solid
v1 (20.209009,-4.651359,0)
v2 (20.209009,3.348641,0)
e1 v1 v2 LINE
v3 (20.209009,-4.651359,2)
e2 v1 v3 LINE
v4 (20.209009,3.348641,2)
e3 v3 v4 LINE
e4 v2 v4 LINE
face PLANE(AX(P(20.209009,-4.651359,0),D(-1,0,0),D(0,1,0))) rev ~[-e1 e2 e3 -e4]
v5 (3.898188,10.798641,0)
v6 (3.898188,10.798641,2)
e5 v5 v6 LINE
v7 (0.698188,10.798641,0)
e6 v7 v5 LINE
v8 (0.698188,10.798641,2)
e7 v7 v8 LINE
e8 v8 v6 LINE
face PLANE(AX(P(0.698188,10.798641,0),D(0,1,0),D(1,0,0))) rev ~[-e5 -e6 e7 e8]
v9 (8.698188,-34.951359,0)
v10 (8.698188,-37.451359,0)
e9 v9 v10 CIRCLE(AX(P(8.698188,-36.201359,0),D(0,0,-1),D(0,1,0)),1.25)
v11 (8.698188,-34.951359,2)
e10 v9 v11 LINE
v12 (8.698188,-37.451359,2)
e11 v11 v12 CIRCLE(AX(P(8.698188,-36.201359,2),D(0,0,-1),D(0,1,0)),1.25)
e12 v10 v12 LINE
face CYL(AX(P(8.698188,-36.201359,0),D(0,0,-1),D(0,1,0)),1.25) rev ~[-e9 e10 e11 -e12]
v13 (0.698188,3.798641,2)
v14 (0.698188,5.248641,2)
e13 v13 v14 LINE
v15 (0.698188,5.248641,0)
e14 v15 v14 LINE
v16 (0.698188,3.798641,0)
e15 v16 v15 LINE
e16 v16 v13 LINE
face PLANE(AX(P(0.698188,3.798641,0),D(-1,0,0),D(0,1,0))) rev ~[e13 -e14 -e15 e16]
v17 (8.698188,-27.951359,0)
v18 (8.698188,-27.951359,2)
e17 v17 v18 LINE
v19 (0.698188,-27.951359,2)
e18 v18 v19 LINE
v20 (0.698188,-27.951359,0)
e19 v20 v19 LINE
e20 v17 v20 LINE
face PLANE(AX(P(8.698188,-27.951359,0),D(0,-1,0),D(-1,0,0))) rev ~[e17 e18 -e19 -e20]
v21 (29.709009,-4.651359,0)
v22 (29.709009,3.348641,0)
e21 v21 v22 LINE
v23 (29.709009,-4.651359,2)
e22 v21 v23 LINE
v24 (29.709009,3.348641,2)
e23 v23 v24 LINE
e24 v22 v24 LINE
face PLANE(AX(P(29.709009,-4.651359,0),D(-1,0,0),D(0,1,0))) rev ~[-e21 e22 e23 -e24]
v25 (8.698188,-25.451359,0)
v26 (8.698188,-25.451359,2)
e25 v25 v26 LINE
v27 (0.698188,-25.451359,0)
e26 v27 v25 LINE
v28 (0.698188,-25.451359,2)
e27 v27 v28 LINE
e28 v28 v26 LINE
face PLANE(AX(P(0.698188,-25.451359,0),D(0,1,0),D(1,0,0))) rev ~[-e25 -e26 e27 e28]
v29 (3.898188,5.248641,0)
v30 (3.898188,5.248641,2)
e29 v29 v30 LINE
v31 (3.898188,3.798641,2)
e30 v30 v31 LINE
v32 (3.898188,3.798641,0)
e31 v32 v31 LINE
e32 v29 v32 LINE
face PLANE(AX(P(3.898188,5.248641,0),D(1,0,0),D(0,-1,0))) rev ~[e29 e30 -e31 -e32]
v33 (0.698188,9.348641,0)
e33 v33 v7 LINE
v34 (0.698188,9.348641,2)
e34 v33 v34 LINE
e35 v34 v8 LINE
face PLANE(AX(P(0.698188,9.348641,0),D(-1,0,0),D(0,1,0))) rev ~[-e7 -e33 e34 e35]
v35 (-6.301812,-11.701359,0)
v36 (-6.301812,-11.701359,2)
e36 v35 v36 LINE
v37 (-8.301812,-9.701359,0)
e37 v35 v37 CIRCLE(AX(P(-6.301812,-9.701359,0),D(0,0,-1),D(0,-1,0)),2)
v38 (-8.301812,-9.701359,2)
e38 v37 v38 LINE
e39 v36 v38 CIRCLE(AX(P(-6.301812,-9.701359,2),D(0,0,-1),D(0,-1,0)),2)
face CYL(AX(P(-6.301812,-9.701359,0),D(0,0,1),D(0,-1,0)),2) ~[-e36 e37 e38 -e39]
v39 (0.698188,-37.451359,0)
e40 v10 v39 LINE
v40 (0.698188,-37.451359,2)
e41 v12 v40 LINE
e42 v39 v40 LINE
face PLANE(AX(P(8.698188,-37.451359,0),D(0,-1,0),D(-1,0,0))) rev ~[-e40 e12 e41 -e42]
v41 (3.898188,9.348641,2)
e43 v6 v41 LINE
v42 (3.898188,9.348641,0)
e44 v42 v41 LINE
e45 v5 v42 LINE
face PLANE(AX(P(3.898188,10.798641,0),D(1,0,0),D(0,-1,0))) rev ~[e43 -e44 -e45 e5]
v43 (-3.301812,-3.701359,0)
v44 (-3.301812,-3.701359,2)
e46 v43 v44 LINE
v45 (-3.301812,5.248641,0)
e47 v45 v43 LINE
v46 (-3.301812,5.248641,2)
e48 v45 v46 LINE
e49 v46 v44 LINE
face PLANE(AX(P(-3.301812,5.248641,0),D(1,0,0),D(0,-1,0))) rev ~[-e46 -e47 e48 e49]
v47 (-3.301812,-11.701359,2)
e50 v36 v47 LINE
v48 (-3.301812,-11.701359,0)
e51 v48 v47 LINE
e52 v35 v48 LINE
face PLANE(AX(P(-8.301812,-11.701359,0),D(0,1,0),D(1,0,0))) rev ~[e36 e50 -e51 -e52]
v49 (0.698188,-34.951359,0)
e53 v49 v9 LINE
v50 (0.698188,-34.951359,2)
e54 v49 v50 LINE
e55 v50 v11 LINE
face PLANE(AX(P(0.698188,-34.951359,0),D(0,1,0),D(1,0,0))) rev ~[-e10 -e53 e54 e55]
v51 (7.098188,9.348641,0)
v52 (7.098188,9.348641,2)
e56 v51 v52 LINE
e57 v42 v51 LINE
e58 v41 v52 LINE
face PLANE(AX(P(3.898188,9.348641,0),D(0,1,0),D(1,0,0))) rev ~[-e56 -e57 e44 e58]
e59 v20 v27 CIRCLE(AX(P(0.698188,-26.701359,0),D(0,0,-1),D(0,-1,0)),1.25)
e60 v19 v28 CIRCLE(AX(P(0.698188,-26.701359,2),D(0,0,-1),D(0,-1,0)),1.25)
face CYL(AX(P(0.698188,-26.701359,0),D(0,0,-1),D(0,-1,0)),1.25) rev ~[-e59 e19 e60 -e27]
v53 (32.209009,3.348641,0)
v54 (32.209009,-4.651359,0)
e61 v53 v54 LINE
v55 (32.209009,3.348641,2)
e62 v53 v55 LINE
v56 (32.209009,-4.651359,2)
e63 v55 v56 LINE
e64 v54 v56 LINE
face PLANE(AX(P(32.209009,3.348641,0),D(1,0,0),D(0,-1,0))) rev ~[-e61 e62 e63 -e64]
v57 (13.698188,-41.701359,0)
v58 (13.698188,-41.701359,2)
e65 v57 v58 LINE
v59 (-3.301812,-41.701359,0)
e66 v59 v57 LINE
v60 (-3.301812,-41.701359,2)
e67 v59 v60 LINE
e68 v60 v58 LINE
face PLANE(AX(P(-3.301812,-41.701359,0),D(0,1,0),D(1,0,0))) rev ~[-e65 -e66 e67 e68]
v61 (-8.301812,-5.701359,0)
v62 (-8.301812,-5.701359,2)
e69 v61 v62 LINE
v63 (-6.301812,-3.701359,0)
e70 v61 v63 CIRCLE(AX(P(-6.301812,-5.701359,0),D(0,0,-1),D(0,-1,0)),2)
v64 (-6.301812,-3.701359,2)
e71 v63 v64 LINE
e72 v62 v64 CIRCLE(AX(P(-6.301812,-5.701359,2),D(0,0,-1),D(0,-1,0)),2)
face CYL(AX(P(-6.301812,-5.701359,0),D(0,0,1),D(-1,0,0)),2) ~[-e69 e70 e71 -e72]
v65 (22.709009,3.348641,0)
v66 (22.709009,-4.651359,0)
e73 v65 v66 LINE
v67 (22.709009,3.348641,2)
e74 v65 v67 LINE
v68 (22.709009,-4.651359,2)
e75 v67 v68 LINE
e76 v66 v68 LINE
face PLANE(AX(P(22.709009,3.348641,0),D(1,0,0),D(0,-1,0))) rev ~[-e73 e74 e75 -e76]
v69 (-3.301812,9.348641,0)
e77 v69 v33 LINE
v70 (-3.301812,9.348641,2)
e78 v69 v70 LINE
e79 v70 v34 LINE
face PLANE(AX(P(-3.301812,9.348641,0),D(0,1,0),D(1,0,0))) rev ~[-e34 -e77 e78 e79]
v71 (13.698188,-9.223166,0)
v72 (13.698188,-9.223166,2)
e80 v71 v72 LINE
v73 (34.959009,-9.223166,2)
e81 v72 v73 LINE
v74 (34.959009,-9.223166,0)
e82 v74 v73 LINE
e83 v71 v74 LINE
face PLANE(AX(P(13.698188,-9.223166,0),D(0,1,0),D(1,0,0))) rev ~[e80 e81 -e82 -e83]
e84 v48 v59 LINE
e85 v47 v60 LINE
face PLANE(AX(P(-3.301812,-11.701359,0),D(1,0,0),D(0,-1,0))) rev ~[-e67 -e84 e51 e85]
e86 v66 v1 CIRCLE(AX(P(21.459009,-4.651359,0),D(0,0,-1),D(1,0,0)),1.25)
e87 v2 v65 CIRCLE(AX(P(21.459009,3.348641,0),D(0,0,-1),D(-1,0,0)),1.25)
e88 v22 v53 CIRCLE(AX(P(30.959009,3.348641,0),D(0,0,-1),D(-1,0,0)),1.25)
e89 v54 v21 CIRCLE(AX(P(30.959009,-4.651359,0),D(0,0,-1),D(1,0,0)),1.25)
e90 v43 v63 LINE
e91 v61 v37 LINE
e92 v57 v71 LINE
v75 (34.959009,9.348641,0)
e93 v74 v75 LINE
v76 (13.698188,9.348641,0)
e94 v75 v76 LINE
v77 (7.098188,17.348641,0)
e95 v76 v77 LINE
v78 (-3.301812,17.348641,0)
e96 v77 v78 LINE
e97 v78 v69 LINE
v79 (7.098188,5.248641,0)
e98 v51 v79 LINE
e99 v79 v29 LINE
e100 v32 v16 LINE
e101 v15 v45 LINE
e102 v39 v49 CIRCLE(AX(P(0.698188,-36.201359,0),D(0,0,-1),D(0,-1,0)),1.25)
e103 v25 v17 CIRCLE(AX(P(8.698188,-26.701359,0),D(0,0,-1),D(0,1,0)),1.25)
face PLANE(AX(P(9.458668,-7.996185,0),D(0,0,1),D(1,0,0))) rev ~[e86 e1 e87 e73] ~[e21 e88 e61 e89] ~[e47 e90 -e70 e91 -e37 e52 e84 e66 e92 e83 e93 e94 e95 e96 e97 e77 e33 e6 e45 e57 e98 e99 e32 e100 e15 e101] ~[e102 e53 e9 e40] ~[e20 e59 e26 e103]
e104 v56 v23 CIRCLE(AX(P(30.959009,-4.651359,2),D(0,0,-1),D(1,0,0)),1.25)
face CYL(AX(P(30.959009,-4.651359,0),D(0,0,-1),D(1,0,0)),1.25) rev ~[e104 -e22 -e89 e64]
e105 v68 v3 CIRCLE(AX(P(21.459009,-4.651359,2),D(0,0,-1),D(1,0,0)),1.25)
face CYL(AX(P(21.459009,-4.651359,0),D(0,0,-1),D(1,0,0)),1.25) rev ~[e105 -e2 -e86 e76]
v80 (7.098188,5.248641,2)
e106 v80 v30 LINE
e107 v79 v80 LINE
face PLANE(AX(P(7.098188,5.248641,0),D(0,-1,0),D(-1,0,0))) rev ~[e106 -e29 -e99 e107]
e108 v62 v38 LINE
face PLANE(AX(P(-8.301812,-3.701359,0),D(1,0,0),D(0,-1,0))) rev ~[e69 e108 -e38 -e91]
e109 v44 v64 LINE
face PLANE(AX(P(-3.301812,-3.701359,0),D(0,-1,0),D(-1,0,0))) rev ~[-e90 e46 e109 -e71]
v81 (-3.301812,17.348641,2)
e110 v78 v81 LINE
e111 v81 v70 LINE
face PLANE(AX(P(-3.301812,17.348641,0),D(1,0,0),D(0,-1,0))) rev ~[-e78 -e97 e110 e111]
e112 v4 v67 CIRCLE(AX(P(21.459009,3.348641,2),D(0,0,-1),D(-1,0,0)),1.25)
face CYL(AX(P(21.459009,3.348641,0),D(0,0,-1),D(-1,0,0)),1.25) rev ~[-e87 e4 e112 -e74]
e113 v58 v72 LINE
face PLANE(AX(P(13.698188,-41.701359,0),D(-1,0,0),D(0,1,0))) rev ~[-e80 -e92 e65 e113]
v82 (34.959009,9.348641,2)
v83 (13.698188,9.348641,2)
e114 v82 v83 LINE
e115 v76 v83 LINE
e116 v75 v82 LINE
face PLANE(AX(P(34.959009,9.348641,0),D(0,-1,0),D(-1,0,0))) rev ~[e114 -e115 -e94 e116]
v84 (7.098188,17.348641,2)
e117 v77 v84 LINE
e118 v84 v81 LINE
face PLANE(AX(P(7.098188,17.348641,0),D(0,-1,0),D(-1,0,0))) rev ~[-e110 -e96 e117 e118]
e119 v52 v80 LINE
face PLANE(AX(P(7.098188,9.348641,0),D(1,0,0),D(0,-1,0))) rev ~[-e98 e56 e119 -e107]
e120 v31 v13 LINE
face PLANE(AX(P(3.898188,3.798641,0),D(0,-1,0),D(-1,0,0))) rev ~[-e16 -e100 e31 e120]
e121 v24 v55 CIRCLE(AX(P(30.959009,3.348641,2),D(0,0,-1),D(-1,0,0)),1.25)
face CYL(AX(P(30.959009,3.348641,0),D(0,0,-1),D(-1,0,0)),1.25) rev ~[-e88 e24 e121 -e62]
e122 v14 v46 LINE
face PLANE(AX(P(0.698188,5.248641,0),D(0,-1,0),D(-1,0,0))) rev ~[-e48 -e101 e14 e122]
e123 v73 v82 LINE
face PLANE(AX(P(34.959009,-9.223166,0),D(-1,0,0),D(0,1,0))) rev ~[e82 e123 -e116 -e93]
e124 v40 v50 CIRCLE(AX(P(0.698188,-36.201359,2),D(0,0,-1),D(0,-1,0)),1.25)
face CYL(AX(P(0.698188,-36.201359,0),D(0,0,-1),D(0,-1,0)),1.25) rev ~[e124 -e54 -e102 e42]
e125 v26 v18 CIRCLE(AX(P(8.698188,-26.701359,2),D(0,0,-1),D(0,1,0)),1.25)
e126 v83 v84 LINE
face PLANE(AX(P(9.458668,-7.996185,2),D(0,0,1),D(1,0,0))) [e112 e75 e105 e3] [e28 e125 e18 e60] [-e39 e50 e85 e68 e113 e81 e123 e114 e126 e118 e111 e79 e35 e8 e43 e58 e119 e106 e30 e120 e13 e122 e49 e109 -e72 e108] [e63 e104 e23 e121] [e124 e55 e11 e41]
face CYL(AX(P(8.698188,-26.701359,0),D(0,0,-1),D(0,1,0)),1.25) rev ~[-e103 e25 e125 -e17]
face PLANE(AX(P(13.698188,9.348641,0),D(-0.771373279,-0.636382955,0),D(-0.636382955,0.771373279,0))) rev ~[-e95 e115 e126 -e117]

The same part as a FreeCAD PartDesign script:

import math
import FreeCAD as App
import Part
import Sketcher
from FreeCAD import Vector


def edges_at(feature, points):
    """Names of the edges that pass closest to the given points."""
    edges = feature.Shape.Edges
    near = lambda p: min(range(len(edges)), key=lambda i: edges[i].distToShape(Part.Vertex(*p))[0])
    return sorted({f"Edge{near(p) + 1}" for p in points})


def add_polygon(sketch, points):
    """Adds a closed chain of lines whose ends are joined by coincident constraints."""
    first, n = sketch.GeometryCount, len(points)
    for a, b in zip(points, points[1:] + points[:1]):
        sketch.addGeometry(Part.LineSegment(App.Vector(*a, 0), App.Vector(*b, 0)), False)
    for i in range(n):
        sketch.addConstraint(Sketcher.Constraint("Coincident", first + i, 2, first + (i + 1) % n, 1))

doc = App.newDocument("Part")
body = doc.addObject("PartDesign::Body", "Body")

# Sketch on XY plane
sketch1 = doc.addObject("Sketcher::SketchObject", "Sketch")
body.addObject(sketch1)
sketch1.AttachmentSupport = (doc.XY_Plane, [""])
sketch1.MapMode = "FlatFace"
add_polygon(sketch1, [(-8.301812, -11.701359), (-3.301812, -11.701359), (-3.301812, -41.701359), (13.698188, -41.701359), (13.698188, -9.223166), (34.959009, -9.223166), (34.959009, 9.348641), (13.698188, 9.348641), (7.098188, 17.348641), (-3.301812, 17.348641), (-3.301812, 9.348641), (0.698188, 9.348641), (0.698188, 10.798641), (3.898188, 10.798641), (3.898188, 9.348641), (7.098188, 9.348641), (7.098188, 5.248641), (3.898188, 5.248641), (3.898188, 3.798641), (0.698188, 3.798641), (0.698188, 5.248641), (-3.301812, 5.248641), (-3.301812, -3.701359), (-8.301812, -3.701359)])  # lines 0-23
sketch1.addGeometry(Part.ArcOfCircle(Part.Circle(Vector(8.698188, -36.201359, 0), Vector(0, 0, 1), 1.25), math.radians(-90), math.radians(90)), False)  # 24
sketch1.addGeometry(Part.LineSegment(Vector(8.698188, -37.451359, 0), Vector(0.698188, -37.451359, 0)), False)  # 25
sketch1.addGeometry(Part.ArcOfCircle(Part.Circle(Vector(0.698188, -36.201359, 0), Vector(0, 0, 1), 1.25), math.radians(90), math.radians(270)), False)  # 26
sketch1.addGeometry(Part.LineSegment(Vector(0.698188, -34.951359, 0), Vector(8.698188, -34.951359, 0)), False)  # 27
sketch1.addGeometry(Part.ArcOfCircle(Part.Circle(Vector(0.698188, -26.701359, 0), Vector(0, 0, 1), 1.25), math.radians(90), math.radians(270)), False)  # 28
sketch1.addGeometry(Part.LineSegment(Vector(0.698188, -25.451359, 0), Vector(8.698188, -25.451359, 0)), False)  # 29
sketch1.addGeometry(Part.ArcOfCircle(Part.Circle(Vector(8.698188, -26.701359, 0), Vector(0, 0, 1), 1.25), math.radians(-90), math.radians(90)), False)  # 30
sketch1.addGeometry(Part.LineSegment(Vector(8.698188, -27.951359, 0), Vector(0.698188, -27.951359, 0)), False)  # 31
sketch1.addGeometry(Part.ArcOfCircle(Part.Circle(Vector(21.459009, 3.348641, 0), Vector(0, 0, 1), 1.25), math.radians(0), math.radians(180)), False)  # 32
sketch1.addGeometry(Part.LineSegment(Vector(22.709009, 3.348641, 0), Vector(22.709009, -4.651359, 0)), False)  # 33
sketch1.addGeometry(Part.ArcOfCircle(Part.Circle(Vector(21.459009, -4.651359, 0), Vector(0, 0, 1), 1.25), math.radians(180), math.radians(360)), False)  # 34
sketch1.addGeometry(Part.LineSegment(Vector(20.209009, -4.651359, 0), Vector(20.209009, 3.348641, 0)), False)  # 35
sketch1.addGeometry(Part.ArcOfCircle(Part.Circle(Vector(30.959009, 3.348641, 0), Vector(0, 0, 1), 1.25), math.radians(0), math.radians(180)), False)  # 36
sketch1.addGeometry(Part.LineSegment(Vector(32.209009, 3.348641, 0), Vector(32.209009, -4.651359, 0)), False)  # 37
sketch1.addGeometry(Part.ArcOfCircle(Part.Circle(Vector(30.959009, -4.651359, 0), Vector(0, 0, 1), 1.25), math.radians(180), math.radians(360)), False)  # 38
sketch1.addGeometry(Part.LineSegment(Vector(29.709009, -4.651359, 0), Vector(29.709009, 3.348641, 0)), False)  # 39
sketch1.addConstraint([
    Sketcher.Constraint("Tangent", 24, 1, 25, 1),
    Sketcher.Constraint("Tangent", 25, 2, 26, 2),
    Sketcher.Constraint("Tangent", 26, 1, 27, 1),
    Sketcher.Constraint("Tangent", 27, 2, 24, 2),
    Sketcher.Constraint("Tangent", 28, 1, 29, 1),
    Sketcher.Constraint("Tangent", 29, 2, 30, 2),
    Sketcher.Constraint("Tangent", 30, 1, 31, 1),
    Sketcher.Constraint("Tangent", 31, 2, 28, 2),
    Sketcher.Constraint("Tangent", 32, 1, 33, 1),
    Sketcher.Constraint("Tangent", 33, 2, 34, 2),
    Sketcher.Constraint("Tangent", 34, 1, 35, 1),
    Sketcher.Constraint("Tangent", 35, 2, 32, 2),
    Sketcher.Constraint("Tangent", 36, 1, 37, 1),
    Sketcher.Constraint("Tangent", 37, 2, 38, 2),
    Sketcher.Constraint("Tangent", 38, 1, 39, 1),
    Sketcher.Constraint("Tangent", 39, 2, 36, 2),
    Sketcher.Constraint("Horizontal", 0),
    Sketcher.Constraint("Vertical", 1),
    Sketcher.Constraint("Horizontal", 2),
    Sketcher.Constraint("Vertical", 3),
    Sketcher.Constraint("Horizontal", 4),
    Sketcher.Constraint("Vertical", 5),
    Sketcher.Constraint("Horizontal", 6),
    Sketcher.Constraint("Horizontal", 8),
    Sketcher.Constraint("Vertical", 9),
    Sketcher.Constraint("Horizontal", 10),
    Sketcher.Constraint("Vertical", 11),
    Sketcher.Constraint("Horizontal", 12),
    Sketcher.Constraint("Vertical", 13),
    Sketcher.Constraint("Horizontal", 14),
    Sketcher.Constraint("Vertical", 15),
    Sketcher.Constraint("Horizontal", 16),
    Sketcher.Constraint("Vertical", 17),
    Sketcher.Constraint("Horizontal", 18),
    Sketcher.Constraint("Vertical", 19),
    Sketcher.Constraint("Horizontal", 20),
    Sketcher.Constraint("Vertical", 21),
    Sketcher.Constraint("Horizontal", 22),
    Sketcher.Constraint("Vertical", 23),
    Sketcher.Constraint("Horizontal", 25),
    Sketcher.Constraint("Horizontal", 27),
    Sketcher.Constraint("Horizontal", 29),
    Sketcher.Constraint("Horizontal", 31),
    Sketcher.Constraint("Vertical", 33),
    Sketcher.Constraint("Vertical", 35),
    Sketcher.Constraint("Vertical", 37),
    Sketcher.Constraint("Vertical", 39),
    Sketcher.Constraint("Equal", 26, 28),
    Sketcher.Constraint("Equal", 30, 32),
    Sketcher.Constraint("Equal", 34, 36),
    Sketcher.Constraint("Horizontal", 32, 3, 36, 3),
    Sketcher.Constraint("Horizontal", 34, 3, 38, 3),
    Sketcher.Constraint("Horizontal", 6, 2, 9, 2),
    Sketcher.Constraint("Horizontal", 10, 2, 13, 2),
    Sketcher.Constraint("Horizontal", 16, 2, 19, 2),
    Sketcher.Constraint("Vertical", 26, 3, 28, 3),
    Sketcher.Constraint("Vertical", 24, 3, 30, 3),
    Sketcher.Constraint("Vertical", 3, 2, 6, 2),
    Sketcher.Constraint("Vertical", 1, 2, 8, 2),
    Sketcher.Constraint("Vertical", 28, 3, 10, 2),
    Sketcher.Constraint("Vertical", 7, 2, 14, 2),
    Sketcher.Constraint("Vertical", 13, 2, 16, 2),
    Sketcher.Constraint("Vertical", 11, 2, 18, 2),
    Sketcher.Constraint("Vertical", 9, 2, 20, 2),
    Sketcher.Constraint("Equal", 12, 14),
    Sketcher.Constraint("Equal", 31, 9),
    Sketcher.Constraint("Equal", 13, 17),
    Sketcher.Constraint("Equal", 9, 23),
    Sketcher.Constraint("Equal", 23, 33),
    Sketcher.Constraint("DistanceX", 0, 1, 0, 2, 5.0),
    Sketcher.Constraint("DistanceX", 2, 1, 2, 2, 17.0),
    Sketcher.Constraint("DistanceX", 10, 1, 10, 2, 4.0),
    Sketcher.Constraint("DistanceX", 25, 2, 25, 1, 8.0),
    Sketcher.Constraint("DistanceY", 1, 2, 1, 1, 30.0),
    Sketcher.Constraint("Radius", 24, 1.25),
    Sketcher.Constraint("DistanceX", 8, 2, 8, 1, 10.4),
    Sketcher.Constraint("DistanceY", 15, 2, 15, 1, 4.1),
    Sketcher.Constraint("DistanceY", 28, 3, 0, 2, 15.0),
    Sketcher.Constraint("DistanceX", 38, 3, 4, 2, 4.0),
    Sketcher.Constraint("DistanceY", 36, 3, 5, 2, 6.0),
    Sketcher.Constraint("DistanceY", 25, 2, 28, 1, 12.0),
    Sketcher.Constraint("DistanceX", 33, 2, 38, 1, 7.0),
    Sketcher.Constraint("DistanceY", 11, 1, 11, 2, 1.45),
    Sketcher.Constraint("DistanceY", 21, 2, 21, 1, 8.95),
    Sketcher.Constraint("DistanceX", 4, 1, 4, 2, 21.260821),
    Sketcher.Constraint("DistanceY", 3, 1, 3, 2, 32.478193),
    Sketcher.Constraint("DistanceX", -1, 1, 24, 3, 8.698188),
    Sketcher.Constraint("DistanceY", 24, 3, -1, 1, 36.201359),
])
pad1 = doc.addObject("PartDesign::Pad", "Pad")
body.addObject(pad1)
pad1.Profile = sketch1
pad1.Length = 2
doc.recompute()

fillet = doc.addObject("PartDesign::Fillet", "Fillet")
body.addObject(fillet)
fillet.Base = (pad1, edges_at(pad1, [(-8.302, -3.701, 1), (-8.302, -11.701, 1)]))
fillet.Radius = 2

doc.recompute()
